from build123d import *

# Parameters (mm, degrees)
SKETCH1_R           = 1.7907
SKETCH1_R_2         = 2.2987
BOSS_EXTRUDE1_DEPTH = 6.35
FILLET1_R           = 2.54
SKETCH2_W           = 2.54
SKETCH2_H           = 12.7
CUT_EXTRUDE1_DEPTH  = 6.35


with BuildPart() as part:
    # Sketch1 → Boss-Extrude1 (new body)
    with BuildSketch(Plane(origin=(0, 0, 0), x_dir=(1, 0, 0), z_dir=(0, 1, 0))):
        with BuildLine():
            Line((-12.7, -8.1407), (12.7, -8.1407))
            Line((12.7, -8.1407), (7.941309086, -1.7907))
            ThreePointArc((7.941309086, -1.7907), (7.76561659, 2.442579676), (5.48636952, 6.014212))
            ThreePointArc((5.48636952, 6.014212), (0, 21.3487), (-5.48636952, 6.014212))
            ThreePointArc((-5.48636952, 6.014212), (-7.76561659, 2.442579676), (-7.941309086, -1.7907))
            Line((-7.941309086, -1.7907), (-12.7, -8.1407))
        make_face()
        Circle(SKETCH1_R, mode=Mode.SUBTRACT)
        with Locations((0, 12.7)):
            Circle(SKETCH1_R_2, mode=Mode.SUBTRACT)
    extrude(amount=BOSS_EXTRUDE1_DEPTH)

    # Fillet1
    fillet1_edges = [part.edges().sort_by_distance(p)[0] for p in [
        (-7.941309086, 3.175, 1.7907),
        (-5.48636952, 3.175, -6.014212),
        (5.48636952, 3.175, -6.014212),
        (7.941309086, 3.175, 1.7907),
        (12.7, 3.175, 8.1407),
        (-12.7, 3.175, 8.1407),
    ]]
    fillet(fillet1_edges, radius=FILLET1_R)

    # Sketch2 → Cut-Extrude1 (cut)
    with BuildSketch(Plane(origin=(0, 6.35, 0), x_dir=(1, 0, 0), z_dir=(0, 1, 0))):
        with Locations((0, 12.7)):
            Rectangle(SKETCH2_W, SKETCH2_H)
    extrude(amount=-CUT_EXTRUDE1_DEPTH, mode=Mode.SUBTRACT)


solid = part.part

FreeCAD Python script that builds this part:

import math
import FreeCAD as App
import Part
import Sketcher
from FreeCAD import Vector
Q = App.Units.Quantity


def edges_at(feature, points):
    """Names of the edges that pass closest to the given points."""
    edges = feature.Shape.Edges
    near = lambda p: min(range(len(edges)), key=lambda i: edges[i].distToShape(Part.Vertex(*p))[0])
    return sorted({f"Edge{near(p) + 1}" for p in points})


def add_polygon(sketch, points):
    """Adds a closed chain of lines whose ends are joined by coincident constraints."""
    first, n = sketch.GeometryCount, len(points)
    for a, b in zip(points, points[1:] + points[:1]):
        sketch.addGeometry(Part.LineSegment(App.Vector(*a, 0), App.Vector(*b, 0)), False)
    for i in range(n):
        sketch.addConstraint(Sketcher.Constraint("Coincident", first + i, 2, first + (i + 1) % n, 1))

doc = App.newDocument("Part")
body = doc.addObject("PartDesign::Body", "Body")

# Sketch on XZ plane
sketch1 = doc.addObject("Sketcher::SketchObject", "Sketch")
body.addObject(sketch1)
sketch1.AttachmentSupport = (doc.XZ_Plane, [""])
sketch1.MapMode = "FlatFace"
sketch1.addGeometry([
    Part.LineSegment(Vector(-12.7, 8.1, 0), Vector(12.7, 8.1, 0)),  # 0
    Part.LineSegment(Vector(12.7, 8.1, 0), Vector(7.9, 1.8, 0)),  # 1
    Part.ArcOfCircle(Part.Circle(Vector(0, 0, 0), Vector(0, 0, 1), 8.1), math.radians(-48), math.radians(13)),  # 2
    Part.ArcOfCircle(Part.Circle(Vector(0, -12.7, 0), Vector(0, 0, 1), 8.6), math.radians(129), math.radians(411)),  # 3
    Part.ArcOfCircle(Part.Circle(Vector(0, 0, 0), Vector(0, 0, 1), 8.1), math.radians(167), math.radians(228)),  # 4
    Part.LineSegment(Vector(-7.9, 1.8, 0), Vector(-12.7, 8.1, 0)),  # 5
    Part.Circle(Vector(0, 0, 0), Vector(0, 0, 1), 1.8),  # 6
    Part.Circle(Vector(0, -12.7, 0), Vector(0, 0, 1), 2.3),  # 7
], False)
sketch1.addConstraint([
    Sketcher.Constraint("Coincident", 0, 2, 1, 1),
    Sketcher.Constraint("Coincident", 1, 2, 2, 2),
    Sketcher.Constraint("Coincident", 2, 1, 3, 2),
    Sketcher.Constraint("Coincident", 3, 1, 4, 2),
    Sketcher.Constraint("Coincident", 4, 1, 5, 1),
    Sketcher.Constraint("Coincident", 5, 2, 0, 1),
    Sketcher.Constraint("Horizontal", 0),
    Sketcher.Constraint("Coincident", 2, 3, -1, 1),
    Sketcher.Constraint("Coincident", 4, 3, -1, 1),
    Sketcher.Constraint("Coincident", 6, 3, -1, 1),
    Sketcher.Constraint("Coincident", 7, 3, 3, 3),
    Sketcher.Constraint("Equal", 2, 4),
    Sketcher.Constraint("PointOnObject", 3, 3, -2),
    Sketcher.Constraint("Horizontal", 1, 2, 4, 1),
    Sketcher.Constraint("Equal", 1, 5),
    Sketcher.Constraint("DistanceX", 0, 1, 0, 2, Q("1 in")),
    Sketcher.Constraint("Diameter", 6, Q("0.141 in")),
    Sketcher.Constraint("Diameter", 7, Q("0.181 in")),
    Sketcher.Constraint("DistanceY", 3, 3, -1, 1, Q("0.5 in")),
    Sketcher.Constraint("Radius", 2, Q("0.3205 in")),
    Sketcher.Constraint("Radius", 3, Q("0.3405 in")),
    Sketcher.Constraint("DistanceY", 1, 2, 0, 2, Q("0.25 in")),
    Sketcher.Constraint("DistanceY", -1, 1, 0, 2, Q("0.3205 in")),
])
pad1 = doc.addObject("PartDesign::Pad", "Pad")
body.addObject(pad1)
pad1.Profile = sketch1
pad1.Length = Q("0.25 in")
pad1.Reversed = True
doc.recompute()

fillet = doc.addObject("PartDesign::Fillet", "Fillet")
body.addObject(fillet)
fillet.Base = (pad1, edges_at(pad1, [
    (-7.941, 3.175, 1.791),
    (-5.486, 3.175, -6.014),
    (5.486, 3.175, -6.014),
    (7.941, 3.175, 1.791),
    (12.7, 3.175, 8.141),
    (-12.7, 3.175, 8.141),
]))
fillet.Radius = Q("0.1 in")

# Sketch on XZ plane
sketch2 = doc.addObject("Sketcher::SketchObject", "Sketch001")
body.addObject(sketch2)
sketch2.AttachmentSupport = (doc.XZ_Plane, [""])
sketch2.MapMode = "FlatFace"
sketch2.AttachmentOffset = App.Placement(Vector(0, 0, -0.25 * 25.4), App.Rotation())
add_polygon(sketch2, [(-1.3, -19.1), (-1.3, -6.3), (1.3, -6.3), (1.3, -19.1)])  # lines 0-3
sketch2.addConstraint([
    Sketcher.Constraint("Vertical", 0),
    Sketcher.Constraint("Horizontal", 1),
    Sketcher.Constraint("Vertical", 2),
    Sketcher.Constraint("Horizontal", 3),
    Sketcher.Constraint("DistanceX", 1, 1, 1, 2, Q("0.1 in")),
    Sketcher.Constraint("DistanceY", 0, 1, 0, 2, Q("0.5 in")),
    Sketcher.Constraint("DistanceX", 0, 2, -1, 1, Q("0.05 in")),
    Sketcher.Constraint("DistanceY", 0, 2, -1, 1, Q("0.25 in")),
])
pocket1 = doc.addObject("PartDesign::Pocket", "Pocket")
body.addObject(pocket1)
pocket1.Profile = sketch2
pocket1.Length = Q("0.25 in")
pocket1.Reversed = True

doc.recompute()
